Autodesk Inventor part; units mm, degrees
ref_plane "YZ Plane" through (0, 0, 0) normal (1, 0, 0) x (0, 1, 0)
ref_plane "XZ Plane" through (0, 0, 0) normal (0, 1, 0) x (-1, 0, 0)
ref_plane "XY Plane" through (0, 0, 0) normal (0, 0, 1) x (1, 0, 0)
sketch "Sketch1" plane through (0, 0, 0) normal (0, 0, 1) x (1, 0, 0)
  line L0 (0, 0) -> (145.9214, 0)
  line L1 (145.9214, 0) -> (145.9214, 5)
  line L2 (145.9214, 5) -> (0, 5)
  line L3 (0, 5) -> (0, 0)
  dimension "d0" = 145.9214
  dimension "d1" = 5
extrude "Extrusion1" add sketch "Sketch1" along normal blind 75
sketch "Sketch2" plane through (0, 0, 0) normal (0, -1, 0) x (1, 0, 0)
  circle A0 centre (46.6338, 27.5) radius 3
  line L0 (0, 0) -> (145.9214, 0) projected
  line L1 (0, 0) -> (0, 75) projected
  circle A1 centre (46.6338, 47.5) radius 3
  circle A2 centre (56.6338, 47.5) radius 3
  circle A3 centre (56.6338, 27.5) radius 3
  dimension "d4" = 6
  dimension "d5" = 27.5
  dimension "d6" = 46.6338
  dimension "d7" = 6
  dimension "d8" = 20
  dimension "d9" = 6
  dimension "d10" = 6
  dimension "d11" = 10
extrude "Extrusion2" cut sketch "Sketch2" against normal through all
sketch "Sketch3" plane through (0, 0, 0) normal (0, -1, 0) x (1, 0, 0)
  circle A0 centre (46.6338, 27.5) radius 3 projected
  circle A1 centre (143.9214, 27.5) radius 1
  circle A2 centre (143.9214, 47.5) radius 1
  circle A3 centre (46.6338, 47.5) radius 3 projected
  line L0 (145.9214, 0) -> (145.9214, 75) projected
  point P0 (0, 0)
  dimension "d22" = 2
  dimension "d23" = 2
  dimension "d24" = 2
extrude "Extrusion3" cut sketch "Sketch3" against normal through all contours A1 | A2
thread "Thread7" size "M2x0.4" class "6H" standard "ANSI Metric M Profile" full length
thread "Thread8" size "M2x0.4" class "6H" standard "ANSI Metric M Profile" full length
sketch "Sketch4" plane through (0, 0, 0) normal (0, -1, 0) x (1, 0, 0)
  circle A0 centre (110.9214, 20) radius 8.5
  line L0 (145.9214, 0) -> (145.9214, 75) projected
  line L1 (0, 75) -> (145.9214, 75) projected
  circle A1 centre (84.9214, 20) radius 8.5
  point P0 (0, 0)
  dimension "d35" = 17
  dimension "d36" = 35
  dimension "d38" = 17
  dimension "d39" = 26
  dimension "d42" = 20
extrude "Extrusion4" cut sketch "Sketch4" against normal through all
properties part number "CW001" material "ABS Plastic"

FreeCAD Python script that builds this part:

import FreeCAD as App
import Part
import Sketcher

V = App.Vector

doc = App.newDocument("Part")
params = doc.addObject("Spreadsheet::Sheet", "Params")
for row, (alias, value) in enumerate([
    ("sketch1_height", "5 mm"),
    ("pad1_length", "75 mm"),
    ("sketch2_diameter", "6 mm"),
    ("sketch3_diameter", "2 mm"),
    ("sketch4_diameter", "17 mm"),
], start=1):
    params.set(f"A{row}", alias)
    params.set(f"B{row}", "=" + value)
    params.setAlias(f"B{row}", alias)

body = doc.addObject("PartDesign::Body", "Body")

sketch1 = body.newObject("Sketcher::SketchObject", "Sketch")
sketch1.AttachmentSupport = (doc.getObject("XY_Plane"), [""])
sketch1.MapMode = "FlatFace"
sketch1.addGeometry([
    Part.LineSegment(V(0, 5, 0), V(0, 0, 0)),
    Part.LineSegment(V(0, 0, 0), V(146, 0, 0)),
    Part.LineSegment(V(146, 0, 0), V(146, 5, 0)),
    Part.LineSegment(V(146, 5, 0), V(0, 5, 0)),
], False)
sketch1.addConstraint([
    Sketcher.Constraint("Coincident", 0, 2, 1, 1),
    Sketcher.Constraint("Coincident", 1, 2, 2, 1),
    Sketcher.Constraint("Coincident", 2, 2, 3, 1),
    Sketcher.Constraint("Coincident", 3, 2, 0, 1),
    Sketcher.Constraint("Vertical", 0),
    Sketcher.Constraint("Horizontal", 1),
    Sketcher.Constraint("Vertical", 2),
    Sketcher.Constraint("Horizontal", 3),
    Sketcher.Constraint("Coincident", 0, 2, -1, 1),
    Sketcher.Constraint("DistanceY", 0, 2, 0, 1, 5.0),
    Sketcher.Constraint("DistanceX", 1, 1, 1, 2, 145.9214),
])
sketch1.setExpression("Constraints[9]", "Params.sketch1_height")
pad1 = body.newObject("PartDesign::Pad", "Pad")
pad1.Profile = sketch1
pad1.setExpression("Length", "Params.pad1_length")

sketch2 = body.newObject("Sketcher::SketchObject", "Sketch001")
sketch2.AttachmentSupport = (doc.getObject("XZ_Plane"), [""])
sketch2.MapMode = "FlatFace"
sketch2.addGeometry([
    Part.Circle(V(46.6, 27.5, 0), V(0, 0, 1), 3),
    Part.Circle(V(46.6, 47.5, 0), V(0, 0, 1), 3),
    Part.Circle(V(56.6, 47.5, 0), V(0, 0, 1), 3),
    Part.Circle(V(56.6, 27.5, 0), V(0, 0, 1), 3),
], False)
sketch2.addConstraint([
    Sketcher.Constraint("Equal", 0, 1),
    Sketcher.Constraint("Equal", 1, 2),
    Sketcher.Constraint("Equal", 2, 3),
    Sketcher.Constraint("Horizontal", 1, 3, 2, 3),
    Sketcher.Constraint("Horizontal", 0, 3, 3, 3),
    Sketcher.Constraint("Vertical", 0, 3, 1, 3),
    Sketcher.Constraint("Vertical", 2, 3, 3, 3),
    Sketcher.Constraint("Diameter", 0, 6.0),
    Sketcher.Constraint("DistanceY", 0, 3, 1, 3, 20.0),
    Sketcher.Constraint("DistanceX", 1, 3, 2, 3, 10.0),
    Sketcher.Constraint("DistanceY", -1, 1, 0, 3, 27.5),
    Sketcher.Constraint("DistanceX", -1, 1, 0, 3, 46.6338),
])
sketch2.setExpression("Constraints[7]", "Params.sketch2_diameter")
pocket1 = body.newObject("PartDesign::Pocket", "Pocket")
pocket1.Profile = sketch2
pocket1.Type = "ThroughAll"

sketch3 = body.newObject("Sketcher::SketchObject", "Sketch002")
sketch3.AttachmentSupport = (doc.getObject("XZ_Plane"), [""])
sketch3.MapMode = "FlatFace"
sketch3.addGeometry([
    Part.Circle(V(143.9, 27.5, 0), V(0, 0, 1), 1),
    Part.Circle(V(143.9, 47.5, 0), V(0, 0, 1), 1),
], False)
sketch3.addConstraint([
    Sketcher.Constraint("Equal", 0, 1),
    Sketcher.Constraint("Vertical", 0, 3, 1, 3),
    Sketcher.Constraint("Diameter", 0, 2.0),
    Sketcher.Constraint("DistanceY", 0, 3, 1, 3, 20.0),
    Sketcher.Constraint("DistanceY", -1, 1, 0, 3, 27.5),
    Sketcher.Constraint("DistanceX", -1, 1, 0, 3, 143.9214),
])
sketch3.setExpression("Constraints[2]", "Params.sketch3_diameter")
pocket2 = body.newObject("PartDesign::Pocket", "Pocket001")
pocket2.Profile = sketch3
pocket2.Type = "ThroughAll"

sketch4 = body.newObject("Sketcher::SketchObject", "Sketch003")
sketch4.AttachmentSupport = (doc.getObject("XZ_Plane"), [""])
sketch4.MapMode = "FlatFace"
sketch4.addGeometry([
    Part.Circle(V(111, 20, 0), V(0, 0, 1), 8),
    Part.Circle(V(85, 20, 0), V(0, 0, 1), 8),
], False)
sketch4.addConstraint([
    Sketcher.Constraint("Equal", 0, 1),
    Sketcher.Constraint("Horizontal", 0, 3, 1, 3),
    Sketcher.Constraint("Diameter", 0, 17.0),
    Sketcher.Constraint("DistanceY", -1, 1, 0, 3, 20.0),
    Sketcher.Constraint("DistanceX", 1, 3, 0, 3, 26.0),
    Sketcher.Constraint("DistanceX", -1, 1, 0, 3, 110.9214),
])
sketch4.setExpression("Constraints[2]", "Params.sketch4_diameter")
pocket3 = body.newObject("PartDesign::Pocket", "Pocket002")
pocket3.Profile = sketch4
pocket3.Type = "ThroughAll"

doc.recompute()
